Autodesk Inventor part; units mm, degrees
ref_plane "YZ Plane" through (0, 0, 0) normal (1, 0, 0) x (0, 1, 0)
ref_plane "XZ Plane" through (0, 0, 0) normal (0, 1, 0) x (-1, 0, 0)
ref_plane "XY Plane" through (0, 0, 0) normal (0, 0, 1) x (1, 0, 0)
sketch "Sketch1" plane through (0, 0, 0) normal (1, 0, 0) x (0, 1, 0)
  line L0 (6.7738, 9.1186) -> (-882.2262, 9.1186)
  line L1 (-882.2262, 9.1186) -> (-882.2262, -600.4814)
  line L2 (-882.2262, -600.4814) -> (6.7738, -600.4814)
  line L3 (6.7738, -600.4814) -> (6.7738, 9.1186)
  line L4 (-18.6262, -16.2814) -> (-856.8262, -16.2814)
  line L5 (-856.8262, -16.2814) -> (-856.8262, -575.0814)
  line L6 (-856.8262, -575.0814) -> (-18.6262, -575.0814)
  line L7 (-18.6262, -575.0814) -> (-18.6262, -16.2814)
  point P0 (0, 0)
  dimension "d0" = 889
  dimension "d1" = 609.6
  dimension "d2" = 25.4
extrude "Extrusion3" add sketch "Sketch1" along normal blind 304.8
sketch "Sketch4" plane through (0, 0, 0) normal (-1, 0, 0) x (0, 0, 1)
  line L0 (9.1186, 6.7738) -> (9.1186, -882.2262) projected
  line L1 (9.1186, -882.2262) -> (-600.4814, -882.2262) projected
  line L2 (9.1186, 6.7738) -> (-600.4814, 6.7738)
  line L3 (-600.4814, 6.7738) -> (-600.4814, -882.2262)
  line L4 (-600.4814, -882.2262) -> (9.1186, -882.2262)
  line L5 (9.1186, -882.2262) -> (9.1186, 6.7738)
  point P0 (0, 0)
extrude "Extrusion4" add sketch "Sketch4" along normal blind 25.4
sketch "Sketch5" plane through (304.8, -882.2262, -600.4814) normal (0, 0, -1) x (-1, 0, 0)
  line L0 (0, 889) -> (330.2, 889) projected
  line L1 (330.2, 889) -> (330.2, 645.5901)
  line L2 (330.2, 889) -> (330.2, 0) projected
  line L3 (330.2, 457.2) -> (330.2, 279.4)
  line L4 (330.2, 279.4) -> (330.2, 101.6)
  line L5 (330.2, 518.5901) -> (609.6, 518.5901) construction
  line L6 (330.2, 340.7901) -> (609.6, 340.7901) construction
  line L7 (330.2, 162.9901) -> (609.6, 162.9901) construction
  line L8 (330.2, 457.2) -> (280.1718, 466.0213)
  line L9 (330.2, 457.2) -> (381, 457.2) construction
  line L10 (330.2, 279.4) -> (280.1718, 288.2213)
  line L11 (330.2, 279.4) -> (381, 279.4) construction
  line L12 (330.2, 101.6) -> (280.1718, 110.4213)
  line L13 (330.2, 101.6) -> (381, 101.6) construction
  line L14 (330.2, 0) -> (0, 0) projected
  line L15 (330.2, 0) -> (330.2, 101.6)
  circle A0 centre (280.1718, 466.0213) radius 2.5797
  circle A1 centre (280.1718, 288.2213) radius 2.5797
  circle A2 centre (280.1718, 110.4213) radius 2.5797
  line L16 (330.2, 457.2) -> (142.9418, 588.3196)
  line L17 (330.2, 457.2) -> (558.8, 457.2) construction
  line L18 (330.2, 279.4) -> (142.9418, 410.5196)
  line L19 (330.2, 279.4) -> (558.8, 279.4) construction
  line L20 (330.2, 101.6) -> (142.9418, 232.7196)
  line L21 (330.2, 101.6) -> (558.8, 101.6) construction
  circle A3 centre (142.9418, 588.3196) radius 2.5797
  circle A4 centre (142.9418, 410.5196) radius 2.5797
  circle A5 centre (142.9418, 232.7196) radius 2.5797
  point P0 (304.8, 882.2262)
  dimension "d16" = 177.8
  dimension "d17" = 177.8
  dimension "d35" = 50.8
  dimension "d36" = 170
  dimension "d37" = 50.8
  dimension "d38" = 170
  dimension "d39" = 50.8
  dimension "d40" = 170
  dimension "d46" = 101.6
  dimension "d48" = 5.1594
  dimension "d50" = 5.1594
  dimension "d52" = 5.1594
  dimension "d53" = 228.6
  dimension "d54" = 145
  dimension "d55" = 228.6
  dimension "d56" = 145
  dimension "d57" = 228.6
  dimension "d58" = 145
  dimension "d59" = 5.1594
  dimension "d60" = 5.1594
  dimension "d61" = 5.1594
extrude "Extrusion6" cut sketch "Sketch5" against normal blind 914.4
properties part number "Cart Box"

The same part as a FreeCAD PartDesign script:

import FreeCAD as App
import Part
import Sketcher
from FreeCAD import Vector
Q = App.Units.Quantity

doc = App.newDocument("Part")
body = doc.addObject("PartDesign::Body", "Body")

# Sketch on YZ plane
sketch1 = body.newObject("Sketcher::SketchObject", "Sketch")
sketch1.AttachmentSupport = (doc.getObject("YZ_Plane"), [""])
sketch1.MapMode = "FlatFace"
sketch1.addGeometry([
    Part.LineSegment(Vector(7, -600, 0), Vector(7, 9, 0)),  # 0
    Part.LineSegment(Vector(7, 9, 0), Vector(-882, 9, 0)),  # 1
    Part.LineSegment(Vector(-882, 9, 0), Vector(-882, -600, 0)),  # 2
    Part.LineSegment(Vector(-882, -600, 0), Vector(7, -600, 0)),  # 3
    Part.LineSegment(Vector(-857, -16, 0), Vector(-19, -16, 0)),  # 4
    Part.LineSegment(Vector(-19, -16, 0), Vector(-19, -575, 0)),  # 5
    Part.LineSegment(Vector(-19, -575, 0), Vector(-857, -575, 0)),  # 6
    Part.LineSegment(Vector(-857, -575, 0), Vector(-857, -16, 0)),  # 7
], False)
sketch1.addConstraint([
    Sketcher.Constraint("Coincident", 0, 2, 1, 1),
    Sketcher.Constraint("Coincident", 1, 2, 2, 1),
    Sketcher.Constraint("Coincident", 2, 2, 3, 1),
    Sketcher.Constraint("Coincident", 3, 2, 0, 1),
    Sketcher.Constraint("Coincident", 4, 2, 5, 1),
    Sketcher.Constraint("Coincident", 5, 2, 6, 1),
    Sketcher.Constraint("Coincident", 6, 2, 7, 1),
    Sketcher.Constraint("Coincident", 7, 2, 4, 1),
    Sketcher.Constraint("Vertical", 0),
    Sketcher.Constraint("Horizontal", 1),
    Sketcher.Constraint("Vertical", 2),
    Sketcher.Constraint("Horizontal", 3),
    Sketcher.Constraint("Horizontal", 4),
    Sketcher.Constraint("Vertical", 5),
    Sketcher.Constraint("Horizontal", 6),
    Sketcher.Constraint("Vertical", 7),
    Sketcher.Constraint("DistanceX", 1, 2, 1, 1, Q("35 in")),
    Sketcher.Constraint("DistanceY", 0, 1, 0, 2, Q("24 in")),
    Sketcher.Constraint("DistanceX", 4, 2, 0, 2, Q("1 in")),
    Sketcher.Constraint("DistanceY", 4, 2, 0, 2, Q("1 in")),
    Sketcher.Constraint("DistanceY", 3, 2, 5, 2, Q("1 in")),
    Sketcher.Constraint("DistanceX", 2, 2, 6, 2, Q("1 in")),
    Sketcher.Constraint("DistanceY", -1, 1, 0, 2, Q("0.359 in")),
    Sketcher.Constraint("DistanceX", -1, 1, 0, 2, 6.7738),
])
pad1 = body.newObject("PartDesign::Pad", "Pad")
pad1.Profile = sketch1
pad1.Length = Q("12 in")

# Sketch on YZ plane
sketch2 = body.newObject("Sketcher::SketchObject", "Sketch001")
sketch2.AttachmentSupport = (doc.getObject("YZ_Plane"), [""])
sketch2.MapMode = "FlatFace"
sketch2.addGeometry([
    Part.LineSegment(Vector(-882, 9, 0), Vector(7, 9, 0)),
    Part.LineSegment(Vector(7, 9, 0), Vector(7, -600, 0)),
    Part.LineSegment(Vector(7, -600, 0), Vector(-882, -600, 0)),
    Part.LineSegment(Vector(-882, -600, 0), Vector(-882, 9, 0)),
], False)
sketch2.addConstraint([
    Sketcher.Constraint("Coincident", 0, 2, 1, 1),
    Sketcher.Constraint("Coincident", 1, 2, 2, 1),
    Sketcher.Constraint("Coincident", 2, 2, 3, 1),
    Sketcher.Constraint("Coincident", 3, 2, 0, 1),
    Sketcher.Constraint("Horizontal", 0),
    Sketcher.Constraint("Vertical", 1),
    Sketcher.Constraint("Horizontal", 2),
    Sketcher.Constraint("Vertical", 3),
    Sketcher.Constraint("DistanceX", 0, 1, 0, 2, Q("35 in")),
    Sketcher.Constraint("DistanceY", 1, 2, 1, 1, Q("24 in")),
    Sketcher.Constraint("DistanceY", -1, 1, 0, 2, Q("0.359 in")),
    Sketcher.Constraint("DistanceX", -1, 1, 0, 2, 6.7738),
])
pad2 = body.newObject("PartDesign::Pad", "Pad001")
pad2.Profile = sketch2
pad2.Length = Q("1 in")
pad2.Reversed = True

# Sketch on XY plane
sketch3 = body.newObject("Sketcher::SketchObject", "Sketch002")
sketch3.AttachmentSupport = (doc.getObject("XY_Plane"), [""])
sketch3.MapMode = "FlatFace"
sketch3.AttachmentOffset = App.Placement(Vector(0, 0, -23.641 * 25.4), App.Rotation())
sketch3.addGeometry([
    Part.Circle(Vector(24.6, -771.8, 0), Vector(0, 0, 1), 2.6),  # 0
    Part.Circle(Vector(161.9, -649.5, 0), Vector(0, 0, 1), 2.6),  # 1
    Part.Circle(Vector(24.6, -594, 0), Vector(0, 0, 1), 2.6),  # 2
    Part.Circle(Vector(161.9, -471.7, 0), Vector(0, 0, 1), 2.6),  # 3
    Part.Circle(Vector(24.6, -416.2, 0), Vector(0, 0, 1), 2.6),  # 4
    Part.Circle(Vector(161.9, -293.9, 0), Vector(0, 0, 1), 2.6),  # 5
], False)
sketch3.addConstraint([
    Sketcher.Constraint("Equal", 0, 1),
    Sketcher.Constraint("Equal", 1, 2),
    Sketcher.Constraint("Equal", 2, 3),
    Sketcher.Constraint("Equal", 3, 4),
    Sketcher.Constraint("Equal", 4, 5),
    Sketcher.Constraint("Vertical", 0, 3, 2, 3),
    Sketcher.Constraint("Vertical", 1, 3, 3, 3),
    Sketcher.Constraint("Vertical", 2, 3, 4, 3),
    Sketcher.Constraint("Vertical", 3, 3, 5, 3),
    Sketcher.Constraint("Diameter", 0, Q("0.203126 in")),
    Sketcher.Constraint("DistanceY", 0, 3, 2, 3, Q("7 in")),
    Sketcher.Constraint("DistanceY", 1, 3, 3, 3, Q("7 in")),
    Sketcher.Constraint("DistanceY", 2, 3, 4, 3, Q("7 in")),
    Sketcher.Constraint("DistanceY", 3, 3, 5, 3, Q("7 in")),
    Sketcher.Constraint("DistanceY", 0, 3, 1, 3, Q("4.8149 in")),
    Sketcher.Constraint("DistanceX", -1, 1, 0, 3, 24.6282),
    Sketcher.Constraint("DistanceY", 0, 3, -1, 1, 771.805),
    Sketcher.Constraint("DistanceX", -1, 1, 1, 3, 161.8582),
])
pocket1 = body.newObject("PartDesign::Pocket", "Pocket")
pocket1.Profile = sketch3
pocket1.Length = Q("36 in")
pocket1.Reversed = True

doc.recompute()
